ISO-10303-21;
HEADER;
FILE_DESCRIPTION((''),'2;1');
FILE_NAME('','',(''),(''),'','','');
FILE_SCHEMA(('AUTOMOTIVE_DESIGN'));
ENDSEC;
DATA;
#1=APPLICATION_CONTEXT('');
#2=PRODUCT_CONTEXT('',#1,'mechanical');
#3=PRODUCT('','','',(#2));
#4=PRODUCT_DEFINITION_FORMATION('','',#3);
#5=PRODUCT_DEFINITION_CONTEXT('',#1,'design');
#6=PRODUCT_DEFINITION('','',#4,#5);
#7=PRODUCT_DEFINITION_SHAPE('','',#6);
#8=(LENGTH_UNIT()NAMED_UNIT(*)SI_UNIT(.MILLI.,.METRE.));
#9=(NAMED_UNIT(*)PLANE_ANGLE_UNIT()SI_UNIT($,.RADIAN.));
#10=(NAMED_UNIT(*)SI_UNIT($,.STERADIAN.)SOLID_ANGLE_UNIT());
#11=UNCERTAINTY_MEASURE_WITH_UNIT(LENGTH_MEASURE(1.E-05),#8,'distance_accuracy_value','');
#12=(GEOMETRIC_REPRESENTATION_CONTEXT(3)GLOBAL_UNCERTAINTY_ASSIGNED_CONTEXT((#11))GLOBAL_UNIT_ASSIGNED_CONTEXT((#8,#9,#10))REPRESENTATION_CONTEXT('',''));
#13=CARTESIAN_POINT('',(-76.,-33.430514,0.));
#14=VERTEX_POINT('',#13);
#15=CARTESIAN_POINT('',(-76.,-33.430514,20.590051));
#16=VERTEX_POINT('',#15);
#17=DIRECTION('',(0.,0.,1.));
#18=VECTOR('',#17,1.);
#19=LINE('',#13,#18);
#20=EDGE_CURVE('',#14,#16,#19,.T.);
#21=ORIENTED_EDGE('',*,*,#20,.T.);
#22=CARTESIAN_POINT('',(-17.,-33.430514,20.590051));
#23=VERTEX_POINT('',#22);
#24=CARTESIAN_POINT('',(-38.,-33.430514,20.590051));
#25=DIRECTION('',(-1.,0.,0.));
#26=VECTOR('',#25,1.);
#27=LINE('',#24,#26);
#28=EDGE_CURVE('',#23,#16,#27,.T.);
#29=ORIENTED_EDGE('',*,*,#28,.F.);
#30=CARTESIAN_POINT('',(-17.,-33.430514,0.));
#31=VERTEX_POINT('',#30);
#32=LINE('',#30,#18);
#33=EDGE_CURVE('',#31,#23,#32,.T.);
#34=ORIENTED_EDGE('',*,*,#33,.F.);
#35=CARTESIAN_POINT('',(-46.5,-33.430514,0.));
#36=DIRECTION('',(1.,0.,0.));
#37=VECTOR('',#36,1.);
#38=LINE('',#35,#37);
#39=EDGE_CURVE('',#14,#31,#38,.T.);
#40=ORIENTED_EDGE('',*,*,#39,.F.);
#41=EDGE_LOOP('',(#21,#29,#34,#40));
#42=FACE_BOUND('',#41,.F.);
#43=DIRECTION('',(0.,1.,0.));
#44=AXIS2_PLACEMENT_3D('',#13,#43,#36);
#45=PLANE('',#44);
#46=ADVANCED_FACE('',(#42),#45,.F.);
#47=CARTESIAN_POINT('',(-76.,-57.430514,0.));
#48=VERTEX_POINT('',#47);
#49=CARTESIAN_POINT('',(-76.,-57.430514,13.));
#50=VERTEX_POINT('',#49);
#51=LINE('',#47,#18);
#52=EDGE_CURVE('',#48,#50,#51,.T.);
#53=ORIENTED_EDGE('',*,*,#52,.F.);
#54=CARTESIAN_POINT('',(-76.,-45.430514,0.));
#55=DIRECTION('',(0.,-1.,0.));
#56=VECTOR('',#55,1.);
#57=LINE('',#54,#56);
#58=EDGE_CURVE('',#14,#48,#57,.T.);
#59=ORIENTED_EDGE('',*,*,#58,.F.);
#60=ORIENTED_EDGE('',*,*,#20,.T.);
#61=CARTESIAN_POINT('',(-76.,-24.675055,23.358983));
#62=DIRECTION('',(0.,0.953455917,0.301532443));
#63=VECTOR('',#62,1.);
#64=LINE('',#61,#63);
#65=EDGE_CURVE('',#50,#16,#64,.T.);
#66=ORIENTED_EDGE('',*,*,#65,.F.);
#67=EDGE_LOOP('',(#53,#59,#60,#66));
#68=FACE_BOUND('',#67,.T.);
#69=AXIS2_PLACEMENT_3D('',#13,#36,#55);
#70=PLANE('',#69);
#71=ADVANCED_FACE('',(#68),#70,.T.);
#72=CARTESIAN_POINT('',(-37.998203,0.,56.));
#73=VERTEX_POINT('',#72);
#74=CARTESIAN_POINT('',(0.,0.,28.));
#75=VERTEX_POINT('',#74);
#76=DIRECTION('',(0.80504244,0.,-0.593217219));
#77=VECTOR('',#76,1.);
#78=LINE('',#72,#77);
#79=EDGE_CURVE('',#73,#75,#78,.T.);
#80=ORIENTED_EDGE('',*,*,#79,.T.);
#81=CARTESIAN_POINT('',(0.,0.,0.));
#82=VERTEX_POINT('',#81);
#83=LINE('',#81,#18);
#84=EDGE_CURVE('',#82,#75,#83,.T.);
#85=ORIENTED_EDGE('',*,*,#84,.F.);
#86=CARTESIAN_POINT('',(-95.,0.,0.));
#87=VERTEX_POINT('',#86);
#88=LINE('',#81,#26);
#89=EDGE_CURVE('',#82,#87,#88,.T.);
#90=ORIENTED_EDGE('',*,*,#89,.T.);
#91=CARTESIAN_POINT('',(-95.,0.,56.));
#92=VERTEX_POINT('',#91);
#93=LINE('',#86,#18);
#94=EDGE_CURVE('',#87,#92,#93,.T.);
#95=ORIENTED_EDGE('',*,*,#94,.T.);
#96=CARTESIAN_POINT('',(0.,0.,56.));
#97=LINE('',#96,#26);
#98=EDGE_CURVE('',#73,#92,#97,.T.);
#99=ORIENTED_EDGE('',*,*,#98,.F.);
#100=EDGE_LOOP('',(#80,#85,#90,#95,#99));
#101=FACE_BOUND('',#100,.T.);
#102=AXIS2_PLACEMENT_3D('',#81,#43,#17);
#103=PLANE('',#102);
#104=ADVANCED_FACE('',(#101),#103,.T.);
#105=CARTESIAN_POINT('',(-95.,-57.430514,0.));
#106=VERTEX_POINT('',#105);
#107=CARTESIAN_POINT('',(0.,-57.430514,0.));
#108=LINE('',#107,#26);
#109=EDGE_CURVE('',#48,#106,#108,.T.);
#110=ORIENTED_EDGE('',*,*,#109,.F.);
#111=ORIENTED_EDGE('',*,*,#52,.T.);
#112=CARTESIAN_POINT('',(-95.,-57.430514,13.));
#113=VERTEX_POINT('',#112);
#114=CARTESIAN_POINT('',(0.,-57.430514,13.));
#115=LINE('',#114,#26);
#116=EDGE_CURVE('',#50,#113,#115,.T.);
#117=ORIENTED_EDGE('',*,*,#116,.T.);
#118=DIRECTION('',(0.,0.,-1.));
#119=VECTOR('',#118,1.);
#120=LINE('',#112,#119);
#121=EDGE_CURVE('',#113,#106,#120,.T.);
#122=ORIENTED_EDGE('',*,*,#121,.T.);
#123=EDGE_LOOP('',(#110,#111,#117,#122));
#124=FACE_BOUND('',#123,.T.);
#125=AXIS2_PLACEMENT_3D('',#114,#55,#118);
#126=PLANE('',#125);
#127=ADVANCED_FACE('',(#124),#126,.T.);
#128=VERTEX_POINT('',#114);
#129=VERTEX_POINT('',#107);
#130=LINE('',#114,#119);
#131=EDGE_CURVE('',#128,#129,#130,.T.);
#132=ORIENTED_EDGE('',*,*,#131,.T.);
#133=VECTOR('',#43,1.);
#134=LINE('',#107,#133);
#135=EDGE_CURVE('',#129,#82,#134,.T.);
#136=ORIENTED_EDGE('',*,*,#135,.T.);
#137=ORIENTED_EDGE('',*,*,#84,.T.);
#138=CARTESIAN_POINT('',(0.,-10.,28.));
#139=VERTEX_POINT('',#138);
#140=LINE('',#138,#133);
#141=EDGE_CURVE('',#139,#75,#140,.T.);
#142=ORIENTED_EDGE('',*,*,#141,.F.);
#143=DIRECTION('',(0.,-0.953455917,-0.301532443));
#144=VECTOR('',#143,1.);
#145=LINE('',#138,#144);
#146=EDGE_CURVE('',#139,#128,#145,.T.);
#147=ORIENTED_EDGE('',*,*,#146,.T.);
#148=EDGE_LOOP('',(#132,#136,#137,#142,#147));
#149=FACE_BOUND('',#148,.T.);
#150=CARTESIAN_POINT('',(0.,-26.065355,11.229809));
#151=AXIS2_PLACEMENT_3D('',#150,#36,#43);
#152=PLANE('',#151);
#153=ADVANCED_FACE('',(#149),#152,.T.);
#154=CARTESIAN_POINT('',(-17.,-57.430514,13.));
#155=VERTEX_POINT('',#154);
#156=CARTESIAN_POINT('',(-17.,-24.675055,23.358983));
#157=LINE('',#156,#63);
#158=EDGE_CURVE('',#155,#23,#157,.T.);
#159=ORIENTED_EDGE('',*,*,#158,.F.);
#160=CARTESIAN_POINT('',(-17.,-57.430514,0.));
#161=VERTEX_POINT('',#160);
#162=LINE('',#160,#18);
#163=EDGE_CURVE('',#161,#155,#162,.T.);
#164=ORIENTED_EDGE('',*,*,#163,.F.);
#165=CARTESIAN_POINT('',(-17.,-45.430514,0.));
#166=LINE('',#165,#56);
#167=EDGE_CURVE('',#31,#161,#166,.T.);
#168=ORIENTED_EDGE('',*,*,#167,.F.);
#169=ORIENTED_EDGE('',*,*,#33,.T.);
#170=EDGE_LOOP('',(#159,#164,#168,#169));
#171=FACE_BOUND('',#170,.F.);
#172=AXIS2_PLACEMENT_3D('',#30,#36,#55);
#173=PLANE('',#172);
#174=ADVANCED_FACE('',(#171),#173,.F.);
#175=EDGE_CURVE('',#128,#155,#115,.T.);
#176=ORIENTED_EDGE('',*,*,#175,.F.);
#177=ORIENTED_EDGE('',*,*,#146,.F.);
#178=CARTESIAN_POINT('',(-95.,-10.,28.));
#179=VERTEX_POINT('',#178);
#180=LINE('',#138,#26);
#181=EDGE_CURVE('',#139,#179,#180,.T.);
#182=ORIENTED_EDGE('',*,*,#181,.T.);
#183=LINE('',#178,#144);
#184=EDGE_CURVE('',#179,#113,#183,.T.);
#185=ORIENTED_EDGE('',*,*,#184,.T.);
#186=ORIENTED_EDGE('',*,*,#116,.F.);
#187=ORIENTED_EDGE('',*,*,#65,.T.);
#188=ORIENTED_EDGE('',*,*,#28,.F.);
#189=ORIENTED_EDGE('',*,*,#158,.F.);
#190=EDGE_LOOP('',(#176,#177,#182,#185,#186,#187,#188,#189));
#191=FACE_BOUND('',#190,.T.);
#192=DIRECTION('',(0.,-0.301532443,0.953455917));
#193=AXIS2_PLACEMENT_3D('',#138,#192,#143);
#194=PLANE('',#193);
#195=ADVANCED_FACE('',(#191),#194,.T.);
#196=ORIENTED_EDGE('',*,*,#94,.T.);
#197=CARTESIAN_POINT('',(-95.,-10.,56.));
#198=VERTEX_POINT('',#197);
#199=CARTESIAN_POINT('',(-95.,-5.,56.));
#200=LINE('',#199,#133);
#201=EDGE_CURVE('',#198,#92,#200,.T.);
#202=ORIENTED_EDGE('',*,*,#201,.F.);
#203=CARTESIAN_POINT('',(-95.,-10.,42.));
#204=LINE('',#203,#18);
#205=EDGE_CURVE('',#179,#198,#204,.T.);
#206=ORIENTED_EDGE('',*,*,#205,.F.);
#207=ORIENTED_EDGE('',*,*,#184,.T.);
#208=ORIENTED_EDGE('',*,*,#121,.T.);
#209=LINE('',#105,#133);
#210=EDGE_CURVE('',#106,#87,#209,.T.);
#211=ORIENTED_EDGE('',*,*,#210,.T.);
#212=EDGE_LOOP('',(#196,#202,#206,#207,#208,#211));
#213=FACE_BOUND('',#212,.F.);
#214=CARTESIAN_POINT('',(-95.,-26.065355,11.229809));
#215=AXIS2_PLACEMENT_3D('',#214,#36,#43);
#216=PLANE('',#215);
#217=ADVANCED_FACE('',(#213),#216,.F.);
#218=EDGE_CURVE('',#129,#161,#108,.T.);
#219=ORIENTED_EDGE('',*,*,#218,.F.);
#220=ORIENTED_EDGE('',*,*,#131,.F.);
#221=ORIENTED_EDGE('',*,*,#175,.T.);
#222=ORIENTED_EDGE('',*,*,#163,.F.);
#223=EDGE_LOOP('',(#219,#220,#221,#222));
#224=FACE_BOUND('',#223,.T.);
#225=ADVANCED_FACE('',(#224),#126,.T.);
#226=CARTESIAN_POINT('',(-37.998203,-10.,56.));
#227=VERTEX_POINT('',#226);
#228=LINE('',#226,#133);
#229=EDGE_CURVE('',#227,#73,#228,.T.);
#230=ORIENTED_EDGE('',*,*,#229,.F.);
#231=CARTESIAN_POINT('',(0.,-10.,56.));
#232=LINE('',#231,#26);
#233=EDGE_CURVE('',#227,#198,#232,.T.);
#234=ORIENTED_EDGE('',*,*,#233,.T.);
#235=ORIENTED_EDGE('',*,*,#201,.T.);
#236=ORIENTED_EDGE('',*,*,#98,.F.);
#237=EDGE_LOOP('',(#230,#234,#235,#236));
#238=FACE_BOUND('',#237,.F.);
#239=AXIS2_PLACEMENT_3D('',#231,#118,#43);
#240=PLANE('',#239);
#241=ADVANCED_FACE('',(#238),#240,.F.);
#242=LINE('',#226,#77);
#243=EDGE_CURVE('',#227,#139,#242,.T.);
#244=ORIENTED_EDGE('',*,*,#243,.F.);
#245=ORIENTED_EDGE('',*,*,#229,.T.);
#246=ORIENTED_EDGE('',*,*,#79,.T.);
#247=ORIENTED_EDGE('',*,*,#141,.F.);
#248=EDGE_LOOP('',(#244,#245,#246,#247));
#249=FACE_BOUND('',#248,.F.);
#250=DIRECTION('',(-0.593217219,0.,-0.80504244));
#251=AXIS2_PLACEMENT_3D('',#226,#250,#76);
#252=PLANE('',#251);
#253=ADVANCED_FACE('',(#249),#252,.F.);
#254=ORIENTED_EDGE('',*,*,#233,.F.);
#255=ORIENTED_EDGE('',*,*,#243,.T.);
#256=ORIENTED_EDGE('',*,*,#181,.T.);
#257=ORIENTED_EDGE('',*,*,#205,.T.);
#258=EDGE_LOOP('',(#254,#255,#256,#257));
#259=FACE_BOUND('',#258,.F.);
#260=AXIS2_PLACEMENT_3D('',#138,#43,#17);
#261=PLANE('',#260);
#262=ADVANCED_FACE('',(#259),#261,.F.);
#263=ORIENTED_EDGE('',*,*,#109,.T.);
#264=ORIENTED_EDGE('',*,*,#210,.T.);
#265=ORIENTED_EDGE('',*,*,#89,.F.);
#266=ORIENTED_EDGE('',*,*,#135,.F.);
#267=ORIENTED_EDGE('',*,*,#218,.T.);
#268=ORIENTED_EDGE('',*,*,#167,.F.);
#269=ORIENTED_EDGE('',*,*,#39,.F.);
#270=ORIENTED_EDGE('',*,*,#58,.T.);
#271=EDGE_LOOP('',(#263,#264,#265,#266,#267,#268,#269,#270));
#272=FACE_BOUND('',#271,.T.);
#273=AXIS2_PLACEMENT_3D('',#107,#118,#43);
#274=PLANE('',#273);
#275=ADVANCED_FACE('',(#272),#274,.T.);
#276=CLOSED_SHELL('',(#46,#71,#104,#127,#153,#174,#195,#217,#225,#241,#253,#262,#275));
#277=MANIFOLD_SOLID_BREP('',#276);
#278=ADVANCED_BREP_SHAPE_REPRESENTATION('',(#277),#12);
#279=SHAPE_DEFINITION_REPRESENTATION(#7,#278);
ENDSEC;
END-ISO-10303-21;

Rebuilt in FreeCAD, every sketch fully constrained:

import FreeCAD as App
import Part
import Sketcher
from FreeCAD import Vector

doc = App.newDocument("Part")
params = doc.addObject("Spreadsheet::Sheet", "Params")
for row, (alias, value) in enumerate([
    ("sketch1_width", "10 mm"),
    ("sketch1_height", "56 mm"),
    ("sketch1_height2", "28 mm"),
    ("sketch1_height3", "13 mm"),
    ("pad1_length", "95 mm"),
    ("sketch2_height", "28 mm"),
    ("pocket1_length", "10 mm"),
    ("sketch3_width", "59 mm"),
    ("sketch3_height", "24 mm"),
    ("pocket2_length", "62.4 mm"),
], start=1):
    params.set(f"A{row}", alias)
    params.set(f"B{row}", "=" + value)
    params.setAlias(f"B{row}", alias)

body = doc.addObject("PartDesign::Body", "Body")

# Sketch on YZ plane
sketch1 = doc.addObject("Sketcher::SketchObject", "Sketch")
body.addObject(sketch1)
sketch1.AttachmentSupport = (doc.YZ_Plane, [""])
sketch1.MapMode = "FlatFace"
sketch1.addGeometry([
    Part.LineSegment(Vector(-57, 0, 0), Vector(0, 0, 0)),  # 0
    Part.LineSegment(Vector(0, 0, 0), Vector(0, 56, 0)),  # 1
    Part.LineSegment(Vector(0, 56, 0), Vector(-10, 56, 0)),  # 2
    Part.LineSegment(Vector(-10, 56, 0), Vector(-10, 28, 0)),  # 3
    Part.LineSegment(Vector(-10, 28, 0), Vector(-57, 13, 0)),  # 4
    Part.LineSegment(Vector(-57, 13, 0), Vector(-57, 0, 0)),  # 5
], False)
sketch1.addConstraint([
    Sketcher.Constraint("Coincident", 0, 2, 1, 1),
    Sketcher.Constraint("Coincident", 1, 2, 2, 1),
    Sketcher.Constraint("Coincident", 2, 2, 3, 1),
    Sketcher.Constraint("Coincident", 3, 2, 4, 1),
    Sketcher.Constraint("Coincident", 4, 2, 5, 1),
    Sketcher.Constraint("Coincident", 5, 2, 0, 1),
    Sketcher.Constraint("Horizontal", 0),
    Sketcher.Constraint("Vertical", 1),
    Sketcher.Constraint("Horizontal", 2),
    Sketcher.Constraint("Vertical", 3),
    Sketcher.Constraint("Vertical", 5),
    Sketcher.Constraint("Coincident", 0, 2, -1, 1),
    Sketcher.Constraint("DistanceX", 2, 2, 2, 1, 10.0),
    Sketcher.Constraint("DistanceY", 1, 1, 1, 2, 56.0),
    Sketcher.Constraint("DistanceY", 3, 2, 3, 1, 28.0),
    Sketcher.Constraint("DistanceY", 5, 2, 5, 1, 13.0),
    Sketcher.Constraint("Distance", 4, 49.745891),
])
sketch1.setExpression("Constraints[12]", "Params.sketch1_width")
sketch1.setExpression("Constraints[13]", "Params.sketch1_height")
sketch1.setExpression("Constraints[14]", "Params.sketch1_height2")
sketch1.setExpression("Constraints[15]", "Params.sketch1_height3")
pad1 = doc.addObject("PartDesign::Pad", "Pad")
body.addObject(pad1)
pad1.Profile = sketch1
pad1.setExpression("Length", "Params.pad1_length")
pad1.Reversed = True

# Sketch on XZ plane
sketch2 = doc.addObject("Sketcher::SketchObject", "Sketch001")
body.addObject(sketch2)
sketch2.AttachmentSupport = (doc.XZ_Plane, [""])
sketch2.MapMode = "FlatFace"
sketch2.AttachmentOffset = App.Placement(Vector(0, 0, 10), App.Rotation())
sketch2.addGeometry([
    Part.LineSegment(Vector(0, 56, 0), Vector(-38, 56, 0)),
    Part.LineSegment(Vector(-38, 56, 0), Vector(0, 28, 0)),
    Part.LineSegment(Vector(0, 28, 0), Vector(0, 56, 0)),
], False)
sketch2.addConstraint([
    Sketcher.Constraint("Coincident", 0, 2, 1, 1),
    Sketcher.Constraint("Coincident", 1, 2, 2, 1),
    Sketcher.Constraint("Coincident", 2, 2, 0, 1),
    Sketcher.Constraint("Horizontal", 0),
    Sketcher.Constraint("Vertical", 2),
    Sketcher.Constraint("PointOnObject", 1, 2, -2),
    Sketcher.Constraint("DistanceY", 2, 1, 2, 2, 28.0),
    Sketcher.Constraint("DistanceY", -1, 1, 0, 2, 56.0),
    Sketcher.Constraint("Distance", 1, 47.200248),
])
sketch2.setExpression("Constraints[6]", "Params.sketch2_height")
pocket1 = doc.addObject("PartDesign::Pocket", "Pocket")
body.addObject(pocket1)
pocket1.Profile = sketch2
pocket1.setExpression("Length", "Params.pocket1_length")

# Sketch on XY plane
sketch3 = doc.addObject("Sketcher::SketchObject", "Sketch002")
body.addObject(sketch3)
sketch3.AttachmentSupport = (doc.XY_Plane, [""])
sketch3.MapMode = "FlatFace"
sketch3.addGeometry([
    Part.LineSegment(Vector(-76, -57, 0), Vector(-76, -33, 0)),
    Part.LineSegment(Vector(-76, -33, 0), Vector(-17, -33, 0)),
    Part.LineSegment(Vector(-17, -33, 0), Vector(-17, -57, 0)),
    Part.LineSegment(Vector(-17, -57, 0), Vector(-76, -57, 0)),
], False)
sketch3.addConstraint([
    Sketcher.Constraint("Coincident", 0, 2, 1, 1),
    Sketcher.Constraint("Coincident", 1, 2, 2, 1),
    Sketcher.Constraint("Coincident", 2, 2, 3, 1),
    Sketcher.Constraint("Coincident", 3, 2, 0, 1),
    Sketcher.Constraint("Vertical", 0),
    Sketcher.Constraint("Horizontal", 1),
    Sketcher.Constraint("Vertical", 2),
    Sketcher.Constraint("Horizontal", 3),
    Sketcher.Constraint("DistanceX", 1, 1, 1, 2, 59.0),
    Sketcher.Constraint("DistanceY", 0, 1, 0, 2, 24.0),
    Sketcher.Constraint("DistanceX", 0, 2, -1, 1, 76.0),
    Sketcher.Constraint("DistanceY", 0, 2, -1, 1, 33.430514),
])
sketch3.setExpression("Constraints[8]", "Params.sketch3_width")
sketch3.setExpression("Constraints[9]", "Params.sketch3_height")
pocket2 = doc.addObject("PartDesign::Pocket", "Pocket001")
body.addObject(pocket2)
pocket2.Profile = sketch3
pocket2.setExpression("Length", "Params.pocket2_length")
pocket2.Reversed = True

doc.recompute()
